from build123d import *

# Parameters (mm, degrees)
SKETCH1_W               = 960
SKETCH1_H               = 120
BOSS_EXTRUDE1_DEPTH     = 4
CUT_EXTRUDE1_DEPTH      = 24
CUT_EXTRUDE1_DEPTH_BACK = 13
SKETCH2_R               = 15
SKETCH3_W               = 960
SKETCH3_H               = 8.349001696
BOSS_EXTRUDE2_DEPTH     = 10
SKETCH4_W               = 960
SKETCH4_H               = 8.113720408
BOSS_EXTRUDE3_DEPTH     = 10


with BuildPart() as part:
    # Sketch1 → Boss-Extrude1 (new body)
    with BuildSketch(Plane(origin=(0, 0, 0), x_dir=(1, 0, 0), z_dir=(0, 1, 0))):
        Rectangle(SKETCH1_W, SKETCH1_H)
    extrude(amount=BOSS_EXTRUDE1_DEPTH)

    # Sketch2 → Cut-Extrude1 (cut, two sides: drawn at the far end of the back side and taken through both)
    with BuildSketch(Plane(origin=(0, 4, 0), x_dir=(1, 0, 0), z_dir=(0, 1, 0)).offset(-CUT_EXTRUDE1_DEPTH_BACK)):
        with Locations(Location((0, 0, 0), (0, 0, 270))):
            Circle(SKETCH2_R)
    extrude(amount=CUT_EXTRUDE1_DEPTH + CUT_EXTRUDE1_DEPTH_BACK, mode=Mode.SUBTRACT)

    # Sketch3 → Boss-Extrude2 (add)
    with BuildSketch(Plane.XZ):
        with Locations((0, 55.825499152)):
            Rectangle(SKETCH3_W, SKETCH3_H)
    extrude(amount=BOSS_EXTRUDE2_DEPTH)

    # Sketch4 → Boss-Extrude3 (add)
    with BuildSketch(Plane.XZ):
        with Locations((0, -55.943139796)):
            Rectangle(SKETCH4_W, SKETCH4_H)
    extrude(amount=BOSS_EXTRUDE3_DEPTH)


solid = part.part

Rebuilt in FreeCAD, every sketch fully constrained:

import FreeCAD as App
import Part
import Sketcher

V = App.Vector
Q = App.Units.Quantity

doc = App.newDocument("Part")
body = doc.addObject("PartDesign::Body", "Body")

sketch1 = body.newObject("Sketcher::SketchObject", "Sketch")
sketch1.AttachmentSupport = (doc.getObject("XZ_Plane"), [""])
sketch1.MapMode = "FlatFace"
sketch1.addGeometry([
    Part.LineSegment(V(-480, -60, 0), V(-480, 60, 0)),
    Part.LineSegment(V(-480, 60, 0), V(480, 60, 0)),
    Part.LineSegment(V(480, 60, 0), V(480, -60, 0)),
    Part.LineSegment(V(480, -60, 0), V(-480, -60, 0)),
], False)
sketch1.addConstraint([
    Sketcher.Constraint("Coincident", 0, 2, 1, 1),
    Sketcher.Constraint("Coincident", 1, 2, 2, 1),
    Sketcher.Constraint("Coincident", 2, 2, 3, 1),
    Sketcher.Constraint("Coincident", 3, 2, 0, 1),
    Sketcher.Constraint("Vertical", 0),
    Sketcher.Constraint("Horizontal", 1),
    Sketcher.Constraint("Vertical", 2),
    Sketcher.Constraint("Horizontal", 3),
    Sketcher.Constraint("Symmetric", 0, 2, 2, 2, -1, 1),
    Sketcher.Constraint("DistanceX", 1, 1, 1, 2, Q("960 mm")),
    Sketcher.Constraint("DistanceY", 0, 1, 0, 2, Q("120 mm")),
])
pad1 = body.newObject("PartDesign::Pad", "Pad")
pad1.Profile = sketch1
pad1.Length = 4
pad1.Reversed = True

sketch2 = body.newObject("Sketcher::SketchObject", "Sketch001")
sketch2.AttachmentSupport = (doc.getObject("XZ_Plane"), [""])
sketch2.MapMode = "FlatFace"
sketch2.AttachmentOffset = App.Placement(V(0, 0, -4), App.Rotation())
sketch2.addGeometry(Part.Circle(V(0, 0, 0), V(0, 0, 1), 15), False)
sketch2.addConstraint([
    Sketcher.Constraint("Coincident", 0, 3, -1, 1),
    Sketcher.Constraint("Diameter", 0, Q("30 mm")),
])
pocket1 = body.newObject("PartDesign::Pocket", "Pocket")
pocket1.Profile = sketch2
pocket1.Type = "ThroughAll"
pocket1.Midplane = True

sketch3 = body.newObject("Sketcher::SketchObject", "Sketch002")
sketch3.AttachmentSupport = (doc.getObject("XZ_Plane"), [""])
sketch3.MapMode = "FlatFace"
sketch3.addGeometry([
    Part.LineSegment(V(-480, 60, 0), V(-480, 52, 0)),
    Part.LineSegment(V(-480, 52, 0), V(480, 52, 0)),
    Part.LineSegment(V(480, 52, 0), V(480, 60, 0)),
    Part.LineSegment(V(480, 60, 0), V(-480, 60, 0)),
], False)
sketch3.addConstraint([
    Sketcher.Constraint("Coincident", 0, 2, 1, 1),
    Sketcher.Constraint("Coincident", 1, 2, 2, 1),
    Sketcher.Constraint("Coincident", 2, 2, 3, 1),
    Sketcher.Constraint("Coincident", 3, 2, 0, 1),
    Sketcher.Constraint("Vertical", 0),
    Sketcher.Constraint("Horizontal", 1),
    Sketcher.Constraint("Vertical", 2),
    Sketcher.Constraint("Horizontal", 3),
    Sketcher.Constraint("DistanceX", 1, 1, 1, 2, Q("960 mm")),
    Sketcher.Constraint("DistanceX", 0, 2, -1, 1, Q("480 mm")),
    Sketcher.Constraint("DistanceY", -1, 1, 2, 2, Q("60 mm")),
    Sketcher.Constraint("DistanceY", 0, 2, 0, 1, Q("8.349002 mm")),
])
pad2 = body.newObject("PartDesign::Pad", "Pad001")
pad2.Profile = sketch3
pad2.Length = 10

sketch4 = body.newObject("Sketcher::SketchObject", "Sketch003")
sketch4.AttachmentSupport = (doc.getObject("XZ_Plane"), [""])
sketch4.MapMode = "FlatFace"
sketch4.addGeometry([
    Part.LineSegment(V(-480, -52, 0), V(-480, -60, 0)),
    Part.LineSegment(V(-480, -60, 0), V(480, -60, 0)),
    Part.LineSegment(V(480, -60, 0), V(480, -52, 0)),
    Part.LineSegment(V(480, -52, 0), V(-480, -52, 0)),
], False)
sketch4.addConstraint([
    Sketcher.Constraint("Coincident", 0, 2, 1, 1),
    Sketcher.Constraint("Coincident", 1, 2, 2, 1),
    Sketcher.Constraint("Coincident", 2, 2, 3, 1),
    Sketcher.Constraint("Coincident", 3, 2, 0, 1),
    Sketcher.Constraint("Vertical", 0),
    Sketcher.Constraint("Horizontal", 1),
    Sketcher.Constraint("Vertical", 2),
    Sketcher.Constraint("Horizontal", 3),
    Sketcher.Constraint("DistanceX", 1, 1, 1, 2, Q("960 mm")),
    Sketcher.Constraint("DistanceX", 0, 2, -1, 1, Q("480 mm")),
    Sketcher.Constraint("DistanceY", 0, 2, -1, 1, Q("60 mm")),
    Sketcher.Constraint("DistanceY", 0, 2, 0, 1, Q("8.11372 mm")),
])
pad3 = body.newObject("PartDesign::Pad", "Pad002")
pad3.Profile = sketch4
pad3.Length = 10

doc.recompute()
